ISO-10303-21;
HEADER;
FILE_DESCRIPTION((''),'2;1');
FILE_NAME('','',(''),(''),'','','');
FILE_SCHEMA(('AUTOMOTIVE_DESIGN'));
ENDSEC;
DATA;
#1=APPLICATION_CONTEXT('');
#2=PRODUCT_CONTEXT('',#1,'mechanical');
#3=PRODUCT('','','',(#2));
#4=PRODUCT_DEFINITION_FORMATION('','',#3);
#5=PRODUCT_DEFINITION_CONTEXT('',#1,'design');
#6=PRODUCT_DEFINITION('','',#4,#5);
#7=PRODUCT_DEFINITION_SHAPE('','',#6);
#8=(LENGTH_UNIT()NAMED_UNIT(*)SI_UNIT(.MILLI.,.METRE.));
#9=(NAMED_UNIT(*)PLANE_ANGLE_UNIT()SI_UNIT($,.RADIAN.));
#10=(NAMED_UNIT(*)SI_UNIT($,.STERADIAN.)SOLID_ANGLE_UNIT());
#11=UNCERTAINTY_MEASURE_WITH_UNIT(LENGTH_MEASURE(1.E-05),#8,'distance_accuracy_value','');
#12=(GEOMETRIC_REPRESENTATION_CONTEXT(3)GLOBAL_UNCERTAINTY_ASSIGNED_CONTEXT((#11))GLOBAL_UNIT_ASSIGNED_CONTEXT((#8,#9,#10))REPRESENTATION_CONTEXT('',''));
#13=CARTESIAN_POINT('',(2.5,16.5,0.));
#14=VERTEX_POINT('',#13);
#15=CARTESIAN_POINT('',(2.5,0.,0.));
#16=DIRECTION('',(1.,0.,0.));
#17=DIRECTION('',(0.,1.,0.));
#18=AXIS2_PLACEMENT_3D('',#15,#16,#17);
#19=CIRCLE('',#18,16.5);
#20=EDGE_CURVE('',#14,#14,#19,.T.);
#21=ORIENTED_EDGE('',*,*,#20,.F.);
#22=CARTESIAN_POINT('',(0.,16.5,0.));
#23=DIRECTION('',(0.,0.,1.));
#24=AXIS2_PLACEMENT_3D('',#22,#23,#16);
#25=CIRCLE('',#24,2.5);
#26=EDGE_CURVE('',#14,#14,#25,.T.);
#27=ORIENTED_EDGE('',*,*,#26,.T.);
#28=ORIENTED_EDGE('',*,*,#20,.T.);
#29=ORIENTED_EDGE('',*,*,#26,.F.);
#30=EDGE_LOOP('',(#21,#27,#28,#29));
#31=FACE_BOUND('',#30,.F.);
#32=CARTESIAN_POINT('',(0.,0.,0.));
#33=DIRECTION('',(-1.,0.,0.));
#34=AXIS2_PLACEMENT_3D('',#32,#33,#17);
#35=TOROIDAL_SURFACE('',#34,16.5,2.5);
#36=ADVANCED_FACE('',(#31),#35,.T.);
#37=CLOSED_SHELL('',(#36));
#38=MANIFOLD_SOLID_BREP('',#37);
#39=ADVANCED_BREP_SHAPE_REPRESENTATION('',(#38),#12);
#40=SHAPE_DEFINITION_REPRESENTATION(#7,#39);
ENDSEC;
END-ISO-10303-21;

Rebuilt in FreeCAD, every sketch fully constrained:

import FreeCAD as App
import Part
import Sketcher

V = App.Vector

doc = App.newDocument("Part")
params = doc.addObject("Spreadsheet::Sheet", "Params")
for row, (alias, value) in enumerate([
    ("sketch1_diameter", "5 mm"),
    ("revolution_angle", "360 deg"),
], start=1):
    params.set(f"A{row}", alias)
    params.set(f"B{row}", "=" + value)
    params.setAlias(f"B{row}", alias)

body = doc.addObject("PartDesign::Body", "Body")

# Sketch on XY plane
sketch1 = body.newObject("Sketcher::SketchObject", "Sketch")
sketch1.AttachmentSupport = (doc.getObject("XY_Plane"), [""])
sketch1.MapMode = "FlatFace"
sketch1.addGeometry(Part.Circle(V(0, 16.5, 0), V(0, 0, 1), 2.5), False)
sketch1.addConstraint(Sketcher.Constraint("PointOnObject", 0, 3, -2))
sketch1.addConstraint(Sketcher.Constraint("Diameter", 0, 5.0))
sketch1.addConstraint(Sketcher.Constraint("DistanceY", -1, 1, 0, 3, 16.5))
sketch1.setExpression("Constraints[1]", "Params.sketch1_diameter")
revolution = body.newObject("PartDesign::Revolution", "Revolution")
revolution.Profile = sketch1
revolution.ReferenceAxis = (sketch1, ["H_Axis"])
revolution.setExpression("Angle", "Params.revolution_angle")

doc.recompute()
